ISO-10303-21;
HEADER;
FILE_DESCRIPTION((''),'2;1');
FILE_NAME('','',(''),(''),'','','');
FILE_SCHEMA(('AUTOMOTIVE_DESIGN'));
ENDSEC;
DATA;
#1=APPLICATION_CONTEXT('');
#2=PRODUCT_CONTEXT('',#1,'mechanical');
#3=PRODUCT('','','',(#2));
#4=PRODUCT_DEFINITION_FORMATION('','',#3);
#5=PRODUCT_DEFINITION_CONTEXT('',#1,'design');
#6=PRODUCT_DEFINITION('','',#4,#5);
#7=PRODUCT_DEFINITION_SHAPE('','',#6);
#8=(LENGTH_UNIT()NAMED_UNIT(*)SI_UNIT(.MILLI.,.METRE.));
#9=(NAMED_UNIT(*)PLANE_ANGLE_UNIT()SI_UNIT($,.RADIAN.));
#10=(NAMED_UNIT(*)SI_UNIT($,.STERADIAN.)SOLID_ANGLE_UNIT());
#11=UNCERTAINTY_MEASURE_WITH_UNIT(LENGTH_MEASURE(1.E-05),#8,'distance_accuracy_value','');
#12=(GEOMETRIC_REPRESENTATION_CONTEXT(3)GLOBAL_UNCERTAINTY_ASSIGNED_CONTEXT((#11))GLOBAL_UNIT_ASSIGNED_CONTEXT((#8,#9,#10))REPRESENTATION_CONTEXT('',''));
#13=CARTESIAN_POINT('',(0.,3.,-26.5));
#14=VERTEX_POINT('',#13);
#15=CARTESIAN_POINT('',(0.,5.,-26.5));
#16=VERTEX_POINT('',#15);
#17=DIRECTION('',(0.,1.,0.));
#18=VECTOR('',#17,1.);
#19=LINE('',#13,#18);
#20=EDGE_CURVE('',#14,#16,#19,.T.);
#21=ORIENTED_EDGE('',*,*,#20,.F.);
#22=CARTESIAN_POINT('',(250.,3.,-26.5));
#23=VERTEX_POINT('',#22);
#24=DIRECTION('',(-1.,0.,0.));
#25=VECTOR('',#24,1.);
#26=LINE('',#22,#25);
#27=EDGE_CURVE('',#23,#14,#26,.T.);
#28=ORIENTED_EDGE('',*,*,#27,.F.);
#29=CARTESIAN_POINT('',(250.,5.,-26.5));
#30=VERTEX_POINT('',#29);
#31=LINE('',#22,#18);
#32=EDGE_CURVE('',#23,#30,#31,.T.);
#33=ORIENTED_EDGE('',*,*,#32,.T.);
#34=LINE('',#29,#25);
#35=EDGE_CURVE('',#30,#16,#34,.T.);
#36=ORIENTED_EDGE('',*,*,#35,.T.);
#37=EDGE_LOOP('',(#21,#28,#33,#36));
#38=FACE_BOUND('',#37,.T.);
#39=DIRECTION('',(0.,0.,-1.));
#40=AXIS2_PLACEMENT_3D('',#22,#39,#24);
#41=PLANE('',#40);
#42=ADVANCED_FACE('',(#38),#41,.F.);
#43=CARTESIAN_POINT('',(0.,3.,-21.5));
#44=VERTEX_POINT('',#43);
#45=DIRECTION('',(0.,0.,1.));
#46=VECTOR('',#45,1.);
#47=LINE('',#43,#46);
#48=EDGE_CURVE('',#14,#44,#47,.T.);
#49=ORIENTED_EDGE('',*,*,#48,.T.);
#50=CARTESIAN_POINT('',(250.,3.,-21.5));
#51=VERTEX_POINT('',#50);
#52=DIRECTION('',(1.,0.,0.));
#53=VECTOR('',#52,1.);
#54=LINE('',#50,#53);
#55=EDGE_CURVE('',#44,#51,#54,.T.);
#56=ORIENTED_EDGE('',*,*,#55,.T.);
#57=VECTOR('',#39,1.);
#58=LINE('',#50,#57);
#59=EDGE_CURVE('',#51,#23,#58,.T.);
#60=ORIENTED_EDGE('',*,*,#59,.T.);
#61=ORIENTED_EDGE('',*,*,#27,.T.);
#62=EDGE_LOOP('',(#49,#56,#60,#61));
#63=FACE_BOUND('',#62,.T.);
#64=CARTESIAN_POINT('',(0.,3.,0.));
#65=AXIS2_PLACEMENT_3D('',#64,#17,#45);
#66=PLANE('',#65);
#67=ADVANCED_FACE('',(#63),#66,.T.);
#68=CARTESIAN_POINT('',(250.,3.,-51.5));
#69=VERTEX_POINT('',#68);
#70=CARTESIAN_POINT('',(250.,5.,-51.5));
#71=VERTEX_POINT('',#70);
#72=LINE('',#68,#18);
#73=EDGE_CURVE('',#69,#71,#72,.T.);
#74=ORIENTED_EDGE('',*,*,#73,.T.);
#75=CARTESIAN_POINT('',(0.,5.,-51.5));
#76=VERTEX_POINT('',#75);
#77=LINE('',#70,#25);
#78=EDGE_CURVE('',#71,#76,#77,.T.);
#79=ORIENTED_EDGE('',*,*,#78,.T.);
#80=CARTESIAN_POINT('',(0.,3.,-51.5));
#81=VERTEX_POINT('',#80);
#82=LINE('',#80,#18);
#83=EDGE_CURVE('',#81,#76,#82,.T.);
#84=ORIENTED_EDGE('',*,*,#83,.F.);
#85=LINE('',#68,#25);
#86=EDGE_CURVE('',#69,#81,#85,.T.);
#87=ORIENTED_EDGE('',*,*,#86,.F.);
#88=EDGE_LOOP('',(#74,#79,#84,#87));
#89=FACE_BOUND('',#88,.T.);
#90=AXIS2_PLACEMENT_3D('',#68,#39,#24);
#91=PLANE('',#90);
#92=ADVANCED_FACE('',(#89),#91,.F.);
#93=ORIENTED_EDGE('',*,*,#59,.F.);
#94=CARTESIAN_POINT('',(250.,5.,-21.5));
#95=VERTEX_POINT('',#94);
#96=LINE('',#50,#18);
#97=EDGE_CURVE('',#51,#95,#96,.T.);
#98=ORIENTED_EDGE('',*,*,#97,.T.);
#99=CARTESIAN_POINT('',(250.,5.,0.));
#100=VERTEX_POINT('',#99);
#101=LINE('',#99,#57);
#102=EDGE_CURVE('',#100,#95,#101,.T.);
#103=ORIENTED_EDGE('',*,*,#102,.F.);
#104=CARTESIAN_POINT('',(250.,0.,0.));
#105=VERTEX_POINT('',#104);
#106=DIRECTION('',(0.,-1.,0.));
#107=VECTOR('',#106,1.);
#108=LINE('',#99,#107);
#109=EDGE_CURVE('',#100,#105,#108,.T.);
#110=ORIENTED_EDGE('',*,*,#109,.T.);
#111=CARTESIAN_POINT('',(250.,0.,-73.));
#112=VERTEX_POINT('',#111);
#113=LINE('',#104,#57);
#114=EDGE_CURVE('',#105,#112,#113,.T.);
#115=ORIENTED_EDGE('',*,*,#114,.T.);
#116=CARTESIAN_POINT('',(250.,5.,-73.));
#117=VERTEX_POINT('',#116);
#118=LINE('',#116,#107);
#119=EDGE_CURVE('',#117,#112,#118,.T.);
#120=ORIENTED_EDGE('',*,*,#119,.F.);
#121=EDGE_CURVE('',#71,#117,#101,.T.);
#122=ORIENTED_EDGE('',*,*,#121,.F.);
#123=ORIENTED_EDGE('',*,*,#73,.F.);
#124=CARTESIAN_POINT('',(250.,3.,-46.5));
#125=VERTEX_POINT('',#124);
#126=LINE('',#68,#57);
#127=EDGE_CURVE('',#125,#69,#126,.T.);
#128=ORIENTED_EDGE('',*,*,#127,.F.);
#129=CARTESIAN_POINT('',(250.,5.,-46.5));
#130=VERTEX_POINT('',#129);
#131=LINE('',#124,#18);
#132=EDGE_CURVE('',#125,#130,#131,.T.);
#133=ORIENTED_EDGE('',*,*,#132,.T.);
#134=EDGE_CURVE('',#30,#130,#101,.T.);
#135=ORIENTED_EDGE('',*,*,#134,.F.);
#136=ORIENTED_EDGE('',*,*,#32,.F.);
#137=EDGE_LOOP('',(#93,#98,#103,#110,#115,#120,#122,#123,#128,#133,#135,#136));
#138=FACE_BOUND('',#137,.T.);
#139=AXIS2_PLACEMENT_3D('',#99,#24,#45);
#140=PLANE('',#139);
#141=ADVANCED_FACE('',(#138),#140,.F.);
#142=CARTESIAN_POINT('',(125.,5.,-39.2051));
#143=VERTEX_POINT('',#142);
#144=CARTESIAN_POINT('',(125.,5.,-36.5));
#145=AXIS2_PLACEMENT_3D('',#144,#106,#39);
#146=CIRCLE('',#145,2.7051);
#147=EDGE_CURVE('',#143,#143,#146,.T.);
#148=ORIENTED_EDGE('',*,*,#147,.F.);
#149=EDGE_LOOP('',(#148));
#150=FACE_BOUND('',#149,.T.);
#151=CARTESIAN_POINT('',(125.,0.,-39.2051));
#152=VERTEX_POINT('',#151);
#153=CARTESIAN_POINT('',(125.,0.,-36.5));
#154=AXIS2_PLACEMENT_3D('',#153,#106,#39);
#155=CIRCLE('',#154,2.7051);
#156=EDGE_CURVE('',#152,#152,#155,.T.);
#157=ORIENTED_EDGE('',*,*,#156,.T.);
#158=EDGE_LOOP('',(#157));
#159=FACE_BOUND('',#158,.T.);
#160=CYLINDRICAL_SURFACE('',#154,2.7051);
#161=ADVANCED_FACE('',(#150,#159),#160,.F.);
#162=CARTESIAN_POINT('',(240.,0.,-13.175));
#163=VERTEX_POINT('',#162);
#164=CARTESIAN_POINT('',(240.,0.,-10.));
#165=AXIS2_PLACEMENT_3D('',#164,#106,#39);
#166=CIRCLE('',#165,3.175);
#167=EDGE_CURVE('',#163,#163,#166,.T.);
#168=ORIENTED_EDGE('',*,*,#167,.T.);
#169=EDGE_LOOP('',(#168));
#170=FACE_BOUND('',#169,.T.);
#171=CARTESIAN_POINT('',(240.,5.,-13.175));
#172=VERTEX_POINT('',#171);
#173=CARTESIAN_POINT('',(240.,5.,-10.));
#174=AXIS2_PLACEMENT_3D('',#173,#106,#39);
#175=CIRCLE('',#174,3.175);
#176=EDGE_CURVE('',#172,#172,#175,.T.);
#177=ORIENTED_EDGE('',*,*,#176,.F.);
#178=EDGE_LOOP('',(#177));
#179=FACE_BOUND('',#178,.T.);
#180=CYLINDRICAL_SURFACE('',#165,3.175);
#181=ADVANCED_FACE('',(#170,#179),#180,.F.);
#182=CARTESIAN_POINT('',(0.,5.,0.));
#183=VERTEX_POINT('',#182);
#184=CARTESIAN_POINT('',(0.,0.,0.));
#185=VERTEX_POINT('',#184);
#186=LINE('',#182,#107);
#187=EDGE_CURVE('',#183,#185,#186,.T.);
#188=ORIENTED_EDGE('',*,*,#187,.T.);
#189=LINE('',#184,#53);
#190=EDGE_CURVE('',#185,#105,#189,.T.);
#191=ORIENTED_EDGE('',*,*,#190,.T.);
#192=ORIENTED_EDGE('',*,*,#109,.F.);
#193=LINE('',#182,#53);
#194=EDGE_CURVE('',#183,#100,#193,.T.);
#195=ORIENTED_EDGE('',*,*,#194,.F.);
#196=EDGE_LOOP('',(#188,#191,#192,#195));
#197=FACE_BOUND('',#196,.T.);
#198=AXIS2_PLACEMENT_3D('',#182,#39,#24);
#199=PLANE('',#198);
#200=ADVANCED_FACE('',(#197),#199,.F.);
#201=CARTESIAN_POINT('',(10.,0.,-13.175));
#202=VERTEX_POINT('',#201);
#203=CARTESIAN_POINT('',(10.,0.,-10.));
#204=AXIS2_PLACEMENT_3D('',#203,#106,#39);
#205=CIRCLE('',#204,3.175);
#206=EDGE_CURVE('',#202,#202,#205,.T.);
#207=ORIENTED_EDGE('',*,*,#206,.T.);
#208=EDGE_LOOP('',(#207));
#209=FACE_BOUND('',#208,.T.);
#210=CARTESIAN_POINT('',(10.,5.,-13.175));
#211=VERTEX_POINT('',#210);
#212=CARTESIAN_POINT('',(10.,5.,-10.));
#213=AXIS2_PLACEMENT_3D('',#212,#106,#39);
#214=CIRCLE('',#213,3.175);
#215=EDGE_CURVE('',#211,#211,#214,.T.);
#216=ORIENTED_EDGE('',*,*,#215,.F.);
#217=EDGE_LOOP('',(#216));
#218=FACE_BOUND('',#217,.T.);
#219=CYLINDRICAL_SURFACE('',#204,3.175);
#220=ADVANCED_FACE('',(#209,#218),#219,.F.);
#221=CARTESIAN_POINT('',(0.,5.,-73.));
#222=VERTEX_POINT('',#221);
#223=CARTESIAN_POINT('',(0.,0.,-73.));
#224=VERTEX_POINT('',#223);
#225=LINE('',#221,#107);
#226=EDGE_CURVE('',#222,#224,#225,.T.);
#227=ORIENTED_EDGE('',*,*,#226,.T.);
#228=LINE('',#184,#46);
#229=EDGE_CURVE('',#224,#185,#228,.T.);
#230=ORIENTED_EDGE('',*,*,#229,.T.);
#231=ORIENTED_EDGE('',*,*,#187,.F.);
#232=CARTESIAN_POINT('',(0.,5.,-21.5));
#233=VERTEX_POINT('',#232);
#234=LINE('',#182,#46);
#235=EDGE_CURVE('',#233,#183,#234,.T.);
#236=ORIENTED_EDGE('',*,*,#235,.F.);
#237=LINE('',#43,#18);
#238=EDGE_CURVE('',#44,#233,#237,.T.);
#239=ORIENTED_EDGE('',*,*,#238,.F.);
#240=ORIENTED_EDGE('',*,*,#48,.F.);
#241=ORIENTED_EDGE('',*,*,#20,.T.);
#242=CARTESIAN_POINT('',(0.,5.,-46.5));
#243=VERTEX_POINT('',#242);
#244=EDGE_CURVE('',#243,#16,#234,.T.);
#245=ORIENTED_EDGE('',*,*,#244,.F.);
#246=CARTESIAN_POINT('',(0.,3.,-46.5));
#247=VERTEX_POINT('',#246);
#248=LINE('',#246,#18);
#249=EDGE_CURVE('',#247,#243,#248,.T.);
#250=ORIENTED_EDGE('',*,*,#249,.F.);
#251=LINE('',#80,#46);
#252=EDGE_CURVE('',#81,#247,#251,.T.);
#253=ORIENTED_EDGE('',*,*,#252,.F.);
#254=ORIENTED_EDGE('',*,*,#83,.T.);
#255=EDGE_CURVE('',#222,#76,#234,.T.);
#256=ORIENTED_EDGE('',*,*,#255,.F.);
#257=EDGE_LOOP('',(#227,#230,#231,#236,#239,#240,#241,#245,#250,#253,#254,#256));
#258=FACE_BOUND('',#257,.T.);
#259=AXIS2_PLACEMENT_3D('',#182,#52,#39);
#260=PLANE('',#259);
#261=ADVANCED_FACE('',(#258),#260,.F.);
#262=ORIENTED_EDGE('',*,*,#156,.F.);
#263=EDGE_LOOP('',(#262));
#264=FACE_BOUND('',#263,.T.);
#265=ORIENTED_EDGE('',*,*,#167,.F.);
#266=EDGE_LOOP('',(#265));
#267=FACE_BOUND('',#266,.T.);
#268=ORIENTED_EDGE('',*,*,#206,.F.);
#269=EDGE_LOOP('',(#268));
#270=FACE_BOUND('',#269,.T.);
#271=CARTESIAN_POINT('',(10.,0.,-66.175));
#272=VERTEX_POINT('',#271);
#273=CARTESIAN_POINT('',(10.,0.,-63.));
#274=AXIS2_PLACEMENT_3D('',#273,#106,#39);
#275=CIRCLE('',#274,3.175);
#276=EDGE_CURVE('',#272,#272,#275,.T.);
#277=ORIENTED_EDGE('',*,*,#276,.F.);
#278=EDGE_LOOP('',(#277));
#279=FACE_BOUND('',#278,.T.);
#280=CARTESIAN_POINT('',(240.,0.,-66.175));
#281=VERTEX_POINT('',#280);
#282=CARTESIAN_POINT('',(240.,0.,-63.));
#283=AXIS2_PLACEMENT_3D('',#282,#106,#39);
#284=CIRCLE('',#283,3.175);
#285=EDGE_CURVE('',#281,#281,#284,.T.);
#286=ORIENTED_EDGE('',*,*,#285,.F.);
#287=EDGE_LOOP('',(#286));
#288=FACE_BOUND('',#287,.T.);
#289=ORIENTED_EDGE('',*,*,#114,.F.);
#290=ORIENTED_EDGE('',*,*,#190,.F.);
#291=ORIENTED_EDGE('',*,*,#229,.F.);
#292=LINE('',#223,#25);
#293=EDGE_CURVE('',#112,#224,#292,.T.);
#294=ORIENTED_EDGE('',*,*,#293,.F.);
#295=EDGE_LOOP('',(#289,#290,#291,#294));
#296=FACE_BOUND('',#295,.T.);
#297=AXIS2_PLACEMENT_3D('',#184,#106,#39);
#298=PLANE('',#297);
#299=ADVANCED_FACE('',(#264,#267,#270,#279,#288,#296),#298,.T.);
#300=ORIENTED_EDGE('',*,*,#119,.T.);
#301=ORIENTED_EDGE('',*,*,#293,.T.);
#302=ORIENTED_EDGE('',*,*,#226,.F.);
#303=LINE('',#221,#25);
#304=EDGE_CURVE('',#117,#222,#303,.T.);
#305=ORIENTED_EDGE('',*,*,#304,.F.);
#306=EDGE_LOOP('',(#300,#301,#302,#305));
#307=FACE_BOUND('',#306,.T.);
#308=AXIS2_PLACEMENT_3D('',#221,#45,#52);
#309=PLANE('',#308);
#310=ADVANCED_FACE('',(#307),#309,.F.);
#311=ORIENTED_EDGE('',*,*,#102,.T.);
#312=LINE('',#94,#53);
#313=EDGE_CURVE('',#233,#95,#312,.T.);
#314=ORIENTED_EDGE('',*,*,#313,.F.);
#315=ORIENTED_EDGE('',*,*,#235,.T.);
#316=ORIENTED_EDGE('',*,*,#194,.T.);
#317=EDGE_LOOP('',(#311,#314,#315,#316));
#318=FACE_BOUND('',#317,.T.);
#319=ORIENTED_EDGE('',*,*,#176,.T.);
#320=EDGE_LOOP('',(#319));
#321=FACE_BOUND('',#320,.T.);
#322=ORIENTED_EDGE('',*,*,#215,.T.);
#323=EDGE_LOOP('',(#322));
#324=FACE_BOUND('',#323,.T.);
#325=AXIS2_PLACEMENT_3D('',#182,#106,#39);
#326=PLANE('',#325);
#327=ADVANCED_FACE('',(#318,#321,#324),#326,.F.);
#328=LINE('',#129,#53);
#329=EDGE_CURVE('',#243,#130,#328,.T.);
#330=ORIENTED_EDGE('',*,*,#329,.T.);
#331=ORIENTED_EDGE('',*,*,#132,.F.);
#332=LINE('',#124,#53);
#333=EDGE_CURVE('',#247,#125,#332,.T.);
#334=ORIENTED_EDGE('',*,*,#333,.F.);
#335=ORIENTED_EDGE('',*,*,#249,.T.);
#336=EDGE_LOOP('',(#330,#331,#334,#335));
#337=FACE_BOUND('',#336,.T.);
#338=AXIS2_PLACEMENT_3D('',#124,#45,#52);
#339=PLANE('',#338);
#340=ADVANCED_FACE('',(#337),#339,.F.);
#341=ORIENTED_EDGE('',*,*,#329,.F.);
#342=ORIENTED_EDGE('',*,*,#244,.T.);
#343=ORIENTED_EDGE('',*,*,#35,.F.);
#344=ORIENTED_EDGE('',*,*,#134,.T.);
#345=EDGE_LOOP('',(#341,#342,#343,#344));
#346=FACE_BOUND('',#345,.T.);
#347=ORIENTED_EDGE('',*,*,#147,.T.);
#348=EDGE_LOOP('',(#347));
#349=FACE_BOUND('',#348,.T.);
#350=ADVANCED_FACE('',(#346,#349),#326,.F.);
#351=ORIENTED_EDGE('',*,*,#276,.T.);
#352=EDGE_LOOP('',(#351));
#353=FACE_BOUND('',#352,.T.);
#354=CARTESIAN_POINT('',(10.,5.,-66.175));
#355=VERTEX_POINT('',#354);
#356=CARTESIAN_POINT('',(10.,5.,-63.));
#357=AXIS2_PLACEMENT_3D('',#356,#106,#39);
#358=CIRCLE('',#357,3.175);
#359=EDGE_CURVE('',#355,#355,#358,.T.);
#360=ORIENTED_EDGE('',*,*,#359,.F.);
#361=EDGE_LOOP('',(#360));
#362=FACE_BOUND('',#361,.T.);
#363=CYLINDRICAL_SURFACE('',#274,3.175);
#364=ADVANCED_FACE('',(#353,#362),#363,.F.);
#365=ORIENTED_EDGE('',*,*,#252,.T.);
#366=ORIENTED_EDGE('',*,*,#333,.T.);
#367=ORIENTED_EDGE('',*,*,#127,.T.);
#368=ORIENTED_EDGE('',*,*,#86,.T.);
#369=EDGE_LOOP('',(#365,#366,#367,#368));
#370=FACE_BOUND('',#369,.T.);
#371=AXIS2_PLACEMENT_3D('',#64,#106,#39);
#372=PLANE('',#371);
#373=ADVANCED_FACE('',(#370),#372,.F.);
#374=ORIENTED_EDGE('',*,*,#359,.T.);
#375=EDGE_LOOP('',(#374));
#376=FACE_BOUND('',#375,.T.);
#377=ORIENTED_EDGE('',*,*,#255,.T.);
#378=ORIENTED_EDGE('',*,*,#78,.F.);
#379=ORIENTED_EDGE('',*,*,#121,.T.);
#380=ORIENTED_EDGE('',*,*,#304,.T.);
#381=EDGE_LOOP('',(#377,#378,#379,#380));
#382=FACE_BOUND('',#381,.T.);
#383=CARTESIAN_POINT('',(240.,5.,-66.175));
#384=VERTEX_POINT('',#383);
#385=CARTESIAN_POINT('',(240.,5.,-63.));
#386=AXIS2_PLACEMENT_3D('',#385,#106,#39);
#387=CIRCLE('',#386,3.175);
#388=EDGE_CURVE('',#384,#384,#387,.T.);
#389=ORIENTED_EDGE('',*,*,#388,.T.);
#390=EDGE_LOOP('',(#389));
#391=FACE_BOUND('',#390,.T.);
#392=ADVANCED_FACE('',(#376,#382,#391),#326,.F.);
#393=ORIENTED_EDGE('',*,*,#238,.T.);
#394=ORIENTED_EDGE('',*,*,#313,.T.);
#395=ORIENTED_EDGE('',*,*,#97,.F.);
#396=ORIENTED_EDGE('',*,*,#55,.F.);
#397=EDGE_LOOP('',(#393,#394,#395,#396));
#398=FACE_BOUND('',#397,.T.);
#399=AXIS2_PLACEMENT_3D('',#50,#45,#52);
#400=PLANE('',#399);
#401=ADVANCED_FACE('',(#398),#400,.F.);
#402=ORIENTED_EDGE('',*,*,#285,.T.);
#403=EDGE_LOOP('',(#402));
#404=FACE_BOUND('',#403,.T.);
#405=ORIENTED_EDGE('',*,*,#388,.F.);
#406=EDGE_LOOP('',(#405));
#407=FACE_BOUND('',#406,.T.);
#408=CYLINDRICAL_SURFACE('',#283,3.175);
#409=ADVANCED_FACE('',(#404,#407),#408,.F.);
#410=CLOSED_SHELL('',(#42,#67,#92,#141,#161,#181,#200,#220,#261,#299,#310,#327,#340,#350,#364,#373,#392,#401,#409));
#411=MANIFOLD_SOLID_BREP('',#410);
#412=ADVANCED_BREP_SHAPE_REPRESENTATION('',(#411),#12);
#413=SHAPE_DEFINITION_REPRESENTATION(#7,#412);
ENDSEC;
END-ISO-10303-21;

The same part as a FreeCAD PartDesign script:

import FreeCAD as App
import Part
import Sketcher

V = App.Vector
Q = App.Units.Quantity

doc = App.newDocument("Part")
params = doc.addObject("Spreadsheet::Sheet", "Params")
for row, (alias, value) in enumerate([
    ("sketch1_width", "250 mm"),
    ("sketch1_height", "73 mm"),
    ("pad1_length", "5 mm"),
    ("sketch2_diameter", "6.35 mm"),
    ("hole_diameter", "6.35 mm"),
    ("hole2_diameter", "5.4102 mm"),
    ("sketch4_width", "250 mm"),
    ("sketch4_height", "5 mm"),
    ("pocket1_length", "2 mm"),
], start=1):
    params.set(f"A{row}", alias)
    params.set(f"B{row}", "=" + value)
    params.setAlias(f"B{row}", alias)

body = doc.addObject("PartDesign::Body", "Body")

sketch1 = body.newObject("Sketcher::SketchObject", "Sketch")
sketch1.AttachmentSupport = (doc.getObject("XZ_Plane"), [""])
sketch1.MapMode = "FlatFace"
sketch1.addGeometry([
    Part.LineSegment(V(0, -73, 0), V(0, 0, 0)),
    Part.LineSegment(V(0, 0, 0), V(250, 0, 0)),
    Part.LineSegment(V(250, 0, 0), V(250, -73, 0)),
    Part.LineSegment(V(250, -73, 0), V(0, -73, 0)),
], False)
sketch1.addConstraint([
    Sketcher.Constraint("Coincident", 0, 2, 1, 1),
    Sketcher.Constraint("Coincident", 1, 2, 2, 1),
    Sketcher.Constraint("Coincident", 2, 2, 3, 1),
    Sketcher.Constraint("Coincident", 3, 2, 0, 1),
    Sketcher.Constraint("Vertical", 0),
    Sketcher.Constraint("Horizontal", 1),
    Sketcher.Constraint("Vertical", 2),
    Sketcher.Constraint("Horizontal", 3),
    Sketcher.Constraint("Coincident", 0, 2, -1, 1),
    Sketcher.Constraint("DistanceX", 1, 1, 1, 2, Q("250 mm")),
    Sketcher.Constraint("DistanceY", 0, 1, 0, 2, Q("73 mm")),
])
sketch1.setExpression("Constraints[9]", "Params.sketch1_width")
sketch1.setExpression("Constraints[10]", "Params.sketch1_height")
pad1 = body.newObject("PartDesign::Pad", "Pad")
pad1.Profile = sketch1
pad1.setExpression("Length", "Params.pad1_length")
pad1.Reversed = True

sketch2 = body.newObject("Sketcher::SketchObject", "Sketch001")
sketch2.AttachmentSupport = (doc.getObject("XZ_Plane"), [""])
sketch2.MapMode = "FlatFace"
sketch2.addGeometry([
    Part.Circle(V(10, -10, 0), V(0, 0, 1), 3.2),
    Part.Circle(V(10, -63, 0), V(0, 0, 1), 3.2),
    Part.Circle(V(240, -63, 0), V(0, 0, 1), 3.2),
    Part.Circle(V(240, -10, 0), V(0, 0, 1), 3.2),
], False)
sketch2.addConstraint([
    Sketcher.Constraint("Equal", 0, 1),
    Sketcher.Constraint("Equal", 1, 2),
    Sketcher.Constraint("Equal", 2, 3),
    Sketcher.Constraint("Horizontal", 1, 3, 2, 3),
    Sketcher.Constraint("Horizontal", 0, 3, 3, 3),
    Sketcher.Constraint("Vertical", 0, 3, 1, 3),
    Sketcher.Constraint("Vertical", 2, 3, 3, 3),
    Sketcher.Constraint("Diameter", 0, Q("6.35 mm")),
    Sketcher.Constraint("DistanceX", -1, 1, 0, 3, Q("10 mm")),
    Sketcher.Constraint("DistanceY", 0, 3, -1, 1, Q("10 mm")),
    Sketcher.Constraint("DistanceY", 1, 3, -1, 1, Q("63 mm")),
    Sketcher.Constraint("DistanceX", -1, 1, 2, 3, Q("240 mm")),
])
sketch2.setExpression("Constraints[7]", "Params.sketch2_diameter")
doc.recompute()
hole = body.newObject("PartDesign::Hole", "Hole")
hole.Profile = sketch2
hole.ThreadType = "None"
hole.setExpression("Diameter", "Params.hole_diameter")
hole.DepthType = "ThroughAll"

sketch3 = body.newObject("Sketcher::SketchObject", "Sketch002")
sketch3.AttachmentSupport = (doc.getObject("XZ_Plane"), [""])
sketch3.MapMode = "FlatFace"
sketch3.addGeometry(Part.Circle(V(125, -36.5, 0), V(0, 0, 1), 2.7), False)
sketch3.addConstraint([
    Sketcher.Constraint("DistanceX", -1, 1, 0, 3, Q("125 mm")),
    Sketcher.Constraint("Diameter", 0, Q("5.4102 mm")),
    Sketcher.Constraint("DistanceY", 0, 3, -1, 1, Q("36.5 mm")),
])
doc.recompute()
hole2 = body.newObject("PartDesign::Hole", "Hole001")
hole2.Profile = sketch3
hole2.ThreadType = "None"
hole2.setExpression("Diameter", "Params.hole2_diameter")
hole2.DepthType = "ThroughAll"

sketch4 = body.newObject("Sketcher::SketchObject", "Sketch003")
sketch4.AttachmentSupport = (doc.getObject("XZ_Plane"), [""])
sketch4.MapMode = "FlatFace"
sketch4.AttachmentOffset = App.Placement(V(0, 0, -5), App.Rotation())
sketch4.addGeometry([
    Part.LineSegment(V(0, -52, 0), V(0, -46, 0)),
    Part.LineSegment(V(0, -46, 0), V(250, -46, 0)),
    Part.LineSegment(V(250, -46, 0), V(250, -52, 0)),
    Part.LineSegment(V(250, -52, 0), V(0, -52, 0)),
    Part.LineSegment(V(0, -26, 0), V(0, -22, 0)),
    Part.LineSegment(V(0, -22, 0), V(250, -22, 0)),
    Part.LineSegment(V(250, -22, 0), V(250, -26, 0)),
    Part.LineSegment(V(250, -26, 0), V(0, -26, 0)),
], False)
sketch4.addConstraint([
    Sketcher.Constraint("Coincident", 0, 2, 1, 1),
    Sketcher.Constraint("Coincident", 1, 2, 2, 1),
    Sketcher.Constraint("Coincident", 2, 2, 3, 1),
    Sketcher.Constraint("Coincident", 3, 2, 0, 1),
    Sketcher.Constraint("Coincident", 4, 2, 5, 1),
    Sketcher.Constraint("Coincident", 5, 2, 6, 1),
    Sketcher.Constraint("Coincident", 6, 2, 7, 1),
    Sketcher.Constraint("Coincident", 7, 2, 4, 1),
    Sketcher.Constraint("Vertical", 0),
    Sketcher.Constraint("Horizontal", 1),
    Sketcher.Constraint("Vertical", 2),
    Sketcher.Constraint("Horizontal", 3),
    Sketcher.Constraint("Vertical", 4),
    Sketcher.Constraint("Horizontal", 5),
    Sketcher.Constraint("Vertical", 6),
    Sketcher.Constraint("Horizontal", 7),
    Sketcher.Constraint("PointOnObject", 0, 2, -2),
    Sketcher.Constraint("PointOnObject", 4, 2, -2),
    Sketcher.Constraint("Vertical", 2, 2, 5, 2),
    Sketcher.Constraint("Equal", 2, 4),
    Sketcher.Constraint("DistanceX", 1, 1, 1, 2, Q("250 mm")),
    Sketcher.Constraint("DistanceY", 0, 1, 0, 2, Q("5 mm")),
    Sketcher.Constraint("DistanceY", 0, 2, 4, 2, Q("25 mm")),
    Sketcher.Constraint("DistanceY", 0, 2, -1, 1, Q("46.5 mm")),
])
sketch4.setExpression("Constraints[20]", "Params.sketch4_width")
sketch4.setExpression("Constraints[21]", "Params.sketch4_height")
pocket1 = body.newObject("PartDesign::Pocket", "Pocket")
pocket1.Profile = sketch4
pocket1.setExpression("Length", "Params.pocket1_length")
pocket1.Reversed = True

doc.recompute()
